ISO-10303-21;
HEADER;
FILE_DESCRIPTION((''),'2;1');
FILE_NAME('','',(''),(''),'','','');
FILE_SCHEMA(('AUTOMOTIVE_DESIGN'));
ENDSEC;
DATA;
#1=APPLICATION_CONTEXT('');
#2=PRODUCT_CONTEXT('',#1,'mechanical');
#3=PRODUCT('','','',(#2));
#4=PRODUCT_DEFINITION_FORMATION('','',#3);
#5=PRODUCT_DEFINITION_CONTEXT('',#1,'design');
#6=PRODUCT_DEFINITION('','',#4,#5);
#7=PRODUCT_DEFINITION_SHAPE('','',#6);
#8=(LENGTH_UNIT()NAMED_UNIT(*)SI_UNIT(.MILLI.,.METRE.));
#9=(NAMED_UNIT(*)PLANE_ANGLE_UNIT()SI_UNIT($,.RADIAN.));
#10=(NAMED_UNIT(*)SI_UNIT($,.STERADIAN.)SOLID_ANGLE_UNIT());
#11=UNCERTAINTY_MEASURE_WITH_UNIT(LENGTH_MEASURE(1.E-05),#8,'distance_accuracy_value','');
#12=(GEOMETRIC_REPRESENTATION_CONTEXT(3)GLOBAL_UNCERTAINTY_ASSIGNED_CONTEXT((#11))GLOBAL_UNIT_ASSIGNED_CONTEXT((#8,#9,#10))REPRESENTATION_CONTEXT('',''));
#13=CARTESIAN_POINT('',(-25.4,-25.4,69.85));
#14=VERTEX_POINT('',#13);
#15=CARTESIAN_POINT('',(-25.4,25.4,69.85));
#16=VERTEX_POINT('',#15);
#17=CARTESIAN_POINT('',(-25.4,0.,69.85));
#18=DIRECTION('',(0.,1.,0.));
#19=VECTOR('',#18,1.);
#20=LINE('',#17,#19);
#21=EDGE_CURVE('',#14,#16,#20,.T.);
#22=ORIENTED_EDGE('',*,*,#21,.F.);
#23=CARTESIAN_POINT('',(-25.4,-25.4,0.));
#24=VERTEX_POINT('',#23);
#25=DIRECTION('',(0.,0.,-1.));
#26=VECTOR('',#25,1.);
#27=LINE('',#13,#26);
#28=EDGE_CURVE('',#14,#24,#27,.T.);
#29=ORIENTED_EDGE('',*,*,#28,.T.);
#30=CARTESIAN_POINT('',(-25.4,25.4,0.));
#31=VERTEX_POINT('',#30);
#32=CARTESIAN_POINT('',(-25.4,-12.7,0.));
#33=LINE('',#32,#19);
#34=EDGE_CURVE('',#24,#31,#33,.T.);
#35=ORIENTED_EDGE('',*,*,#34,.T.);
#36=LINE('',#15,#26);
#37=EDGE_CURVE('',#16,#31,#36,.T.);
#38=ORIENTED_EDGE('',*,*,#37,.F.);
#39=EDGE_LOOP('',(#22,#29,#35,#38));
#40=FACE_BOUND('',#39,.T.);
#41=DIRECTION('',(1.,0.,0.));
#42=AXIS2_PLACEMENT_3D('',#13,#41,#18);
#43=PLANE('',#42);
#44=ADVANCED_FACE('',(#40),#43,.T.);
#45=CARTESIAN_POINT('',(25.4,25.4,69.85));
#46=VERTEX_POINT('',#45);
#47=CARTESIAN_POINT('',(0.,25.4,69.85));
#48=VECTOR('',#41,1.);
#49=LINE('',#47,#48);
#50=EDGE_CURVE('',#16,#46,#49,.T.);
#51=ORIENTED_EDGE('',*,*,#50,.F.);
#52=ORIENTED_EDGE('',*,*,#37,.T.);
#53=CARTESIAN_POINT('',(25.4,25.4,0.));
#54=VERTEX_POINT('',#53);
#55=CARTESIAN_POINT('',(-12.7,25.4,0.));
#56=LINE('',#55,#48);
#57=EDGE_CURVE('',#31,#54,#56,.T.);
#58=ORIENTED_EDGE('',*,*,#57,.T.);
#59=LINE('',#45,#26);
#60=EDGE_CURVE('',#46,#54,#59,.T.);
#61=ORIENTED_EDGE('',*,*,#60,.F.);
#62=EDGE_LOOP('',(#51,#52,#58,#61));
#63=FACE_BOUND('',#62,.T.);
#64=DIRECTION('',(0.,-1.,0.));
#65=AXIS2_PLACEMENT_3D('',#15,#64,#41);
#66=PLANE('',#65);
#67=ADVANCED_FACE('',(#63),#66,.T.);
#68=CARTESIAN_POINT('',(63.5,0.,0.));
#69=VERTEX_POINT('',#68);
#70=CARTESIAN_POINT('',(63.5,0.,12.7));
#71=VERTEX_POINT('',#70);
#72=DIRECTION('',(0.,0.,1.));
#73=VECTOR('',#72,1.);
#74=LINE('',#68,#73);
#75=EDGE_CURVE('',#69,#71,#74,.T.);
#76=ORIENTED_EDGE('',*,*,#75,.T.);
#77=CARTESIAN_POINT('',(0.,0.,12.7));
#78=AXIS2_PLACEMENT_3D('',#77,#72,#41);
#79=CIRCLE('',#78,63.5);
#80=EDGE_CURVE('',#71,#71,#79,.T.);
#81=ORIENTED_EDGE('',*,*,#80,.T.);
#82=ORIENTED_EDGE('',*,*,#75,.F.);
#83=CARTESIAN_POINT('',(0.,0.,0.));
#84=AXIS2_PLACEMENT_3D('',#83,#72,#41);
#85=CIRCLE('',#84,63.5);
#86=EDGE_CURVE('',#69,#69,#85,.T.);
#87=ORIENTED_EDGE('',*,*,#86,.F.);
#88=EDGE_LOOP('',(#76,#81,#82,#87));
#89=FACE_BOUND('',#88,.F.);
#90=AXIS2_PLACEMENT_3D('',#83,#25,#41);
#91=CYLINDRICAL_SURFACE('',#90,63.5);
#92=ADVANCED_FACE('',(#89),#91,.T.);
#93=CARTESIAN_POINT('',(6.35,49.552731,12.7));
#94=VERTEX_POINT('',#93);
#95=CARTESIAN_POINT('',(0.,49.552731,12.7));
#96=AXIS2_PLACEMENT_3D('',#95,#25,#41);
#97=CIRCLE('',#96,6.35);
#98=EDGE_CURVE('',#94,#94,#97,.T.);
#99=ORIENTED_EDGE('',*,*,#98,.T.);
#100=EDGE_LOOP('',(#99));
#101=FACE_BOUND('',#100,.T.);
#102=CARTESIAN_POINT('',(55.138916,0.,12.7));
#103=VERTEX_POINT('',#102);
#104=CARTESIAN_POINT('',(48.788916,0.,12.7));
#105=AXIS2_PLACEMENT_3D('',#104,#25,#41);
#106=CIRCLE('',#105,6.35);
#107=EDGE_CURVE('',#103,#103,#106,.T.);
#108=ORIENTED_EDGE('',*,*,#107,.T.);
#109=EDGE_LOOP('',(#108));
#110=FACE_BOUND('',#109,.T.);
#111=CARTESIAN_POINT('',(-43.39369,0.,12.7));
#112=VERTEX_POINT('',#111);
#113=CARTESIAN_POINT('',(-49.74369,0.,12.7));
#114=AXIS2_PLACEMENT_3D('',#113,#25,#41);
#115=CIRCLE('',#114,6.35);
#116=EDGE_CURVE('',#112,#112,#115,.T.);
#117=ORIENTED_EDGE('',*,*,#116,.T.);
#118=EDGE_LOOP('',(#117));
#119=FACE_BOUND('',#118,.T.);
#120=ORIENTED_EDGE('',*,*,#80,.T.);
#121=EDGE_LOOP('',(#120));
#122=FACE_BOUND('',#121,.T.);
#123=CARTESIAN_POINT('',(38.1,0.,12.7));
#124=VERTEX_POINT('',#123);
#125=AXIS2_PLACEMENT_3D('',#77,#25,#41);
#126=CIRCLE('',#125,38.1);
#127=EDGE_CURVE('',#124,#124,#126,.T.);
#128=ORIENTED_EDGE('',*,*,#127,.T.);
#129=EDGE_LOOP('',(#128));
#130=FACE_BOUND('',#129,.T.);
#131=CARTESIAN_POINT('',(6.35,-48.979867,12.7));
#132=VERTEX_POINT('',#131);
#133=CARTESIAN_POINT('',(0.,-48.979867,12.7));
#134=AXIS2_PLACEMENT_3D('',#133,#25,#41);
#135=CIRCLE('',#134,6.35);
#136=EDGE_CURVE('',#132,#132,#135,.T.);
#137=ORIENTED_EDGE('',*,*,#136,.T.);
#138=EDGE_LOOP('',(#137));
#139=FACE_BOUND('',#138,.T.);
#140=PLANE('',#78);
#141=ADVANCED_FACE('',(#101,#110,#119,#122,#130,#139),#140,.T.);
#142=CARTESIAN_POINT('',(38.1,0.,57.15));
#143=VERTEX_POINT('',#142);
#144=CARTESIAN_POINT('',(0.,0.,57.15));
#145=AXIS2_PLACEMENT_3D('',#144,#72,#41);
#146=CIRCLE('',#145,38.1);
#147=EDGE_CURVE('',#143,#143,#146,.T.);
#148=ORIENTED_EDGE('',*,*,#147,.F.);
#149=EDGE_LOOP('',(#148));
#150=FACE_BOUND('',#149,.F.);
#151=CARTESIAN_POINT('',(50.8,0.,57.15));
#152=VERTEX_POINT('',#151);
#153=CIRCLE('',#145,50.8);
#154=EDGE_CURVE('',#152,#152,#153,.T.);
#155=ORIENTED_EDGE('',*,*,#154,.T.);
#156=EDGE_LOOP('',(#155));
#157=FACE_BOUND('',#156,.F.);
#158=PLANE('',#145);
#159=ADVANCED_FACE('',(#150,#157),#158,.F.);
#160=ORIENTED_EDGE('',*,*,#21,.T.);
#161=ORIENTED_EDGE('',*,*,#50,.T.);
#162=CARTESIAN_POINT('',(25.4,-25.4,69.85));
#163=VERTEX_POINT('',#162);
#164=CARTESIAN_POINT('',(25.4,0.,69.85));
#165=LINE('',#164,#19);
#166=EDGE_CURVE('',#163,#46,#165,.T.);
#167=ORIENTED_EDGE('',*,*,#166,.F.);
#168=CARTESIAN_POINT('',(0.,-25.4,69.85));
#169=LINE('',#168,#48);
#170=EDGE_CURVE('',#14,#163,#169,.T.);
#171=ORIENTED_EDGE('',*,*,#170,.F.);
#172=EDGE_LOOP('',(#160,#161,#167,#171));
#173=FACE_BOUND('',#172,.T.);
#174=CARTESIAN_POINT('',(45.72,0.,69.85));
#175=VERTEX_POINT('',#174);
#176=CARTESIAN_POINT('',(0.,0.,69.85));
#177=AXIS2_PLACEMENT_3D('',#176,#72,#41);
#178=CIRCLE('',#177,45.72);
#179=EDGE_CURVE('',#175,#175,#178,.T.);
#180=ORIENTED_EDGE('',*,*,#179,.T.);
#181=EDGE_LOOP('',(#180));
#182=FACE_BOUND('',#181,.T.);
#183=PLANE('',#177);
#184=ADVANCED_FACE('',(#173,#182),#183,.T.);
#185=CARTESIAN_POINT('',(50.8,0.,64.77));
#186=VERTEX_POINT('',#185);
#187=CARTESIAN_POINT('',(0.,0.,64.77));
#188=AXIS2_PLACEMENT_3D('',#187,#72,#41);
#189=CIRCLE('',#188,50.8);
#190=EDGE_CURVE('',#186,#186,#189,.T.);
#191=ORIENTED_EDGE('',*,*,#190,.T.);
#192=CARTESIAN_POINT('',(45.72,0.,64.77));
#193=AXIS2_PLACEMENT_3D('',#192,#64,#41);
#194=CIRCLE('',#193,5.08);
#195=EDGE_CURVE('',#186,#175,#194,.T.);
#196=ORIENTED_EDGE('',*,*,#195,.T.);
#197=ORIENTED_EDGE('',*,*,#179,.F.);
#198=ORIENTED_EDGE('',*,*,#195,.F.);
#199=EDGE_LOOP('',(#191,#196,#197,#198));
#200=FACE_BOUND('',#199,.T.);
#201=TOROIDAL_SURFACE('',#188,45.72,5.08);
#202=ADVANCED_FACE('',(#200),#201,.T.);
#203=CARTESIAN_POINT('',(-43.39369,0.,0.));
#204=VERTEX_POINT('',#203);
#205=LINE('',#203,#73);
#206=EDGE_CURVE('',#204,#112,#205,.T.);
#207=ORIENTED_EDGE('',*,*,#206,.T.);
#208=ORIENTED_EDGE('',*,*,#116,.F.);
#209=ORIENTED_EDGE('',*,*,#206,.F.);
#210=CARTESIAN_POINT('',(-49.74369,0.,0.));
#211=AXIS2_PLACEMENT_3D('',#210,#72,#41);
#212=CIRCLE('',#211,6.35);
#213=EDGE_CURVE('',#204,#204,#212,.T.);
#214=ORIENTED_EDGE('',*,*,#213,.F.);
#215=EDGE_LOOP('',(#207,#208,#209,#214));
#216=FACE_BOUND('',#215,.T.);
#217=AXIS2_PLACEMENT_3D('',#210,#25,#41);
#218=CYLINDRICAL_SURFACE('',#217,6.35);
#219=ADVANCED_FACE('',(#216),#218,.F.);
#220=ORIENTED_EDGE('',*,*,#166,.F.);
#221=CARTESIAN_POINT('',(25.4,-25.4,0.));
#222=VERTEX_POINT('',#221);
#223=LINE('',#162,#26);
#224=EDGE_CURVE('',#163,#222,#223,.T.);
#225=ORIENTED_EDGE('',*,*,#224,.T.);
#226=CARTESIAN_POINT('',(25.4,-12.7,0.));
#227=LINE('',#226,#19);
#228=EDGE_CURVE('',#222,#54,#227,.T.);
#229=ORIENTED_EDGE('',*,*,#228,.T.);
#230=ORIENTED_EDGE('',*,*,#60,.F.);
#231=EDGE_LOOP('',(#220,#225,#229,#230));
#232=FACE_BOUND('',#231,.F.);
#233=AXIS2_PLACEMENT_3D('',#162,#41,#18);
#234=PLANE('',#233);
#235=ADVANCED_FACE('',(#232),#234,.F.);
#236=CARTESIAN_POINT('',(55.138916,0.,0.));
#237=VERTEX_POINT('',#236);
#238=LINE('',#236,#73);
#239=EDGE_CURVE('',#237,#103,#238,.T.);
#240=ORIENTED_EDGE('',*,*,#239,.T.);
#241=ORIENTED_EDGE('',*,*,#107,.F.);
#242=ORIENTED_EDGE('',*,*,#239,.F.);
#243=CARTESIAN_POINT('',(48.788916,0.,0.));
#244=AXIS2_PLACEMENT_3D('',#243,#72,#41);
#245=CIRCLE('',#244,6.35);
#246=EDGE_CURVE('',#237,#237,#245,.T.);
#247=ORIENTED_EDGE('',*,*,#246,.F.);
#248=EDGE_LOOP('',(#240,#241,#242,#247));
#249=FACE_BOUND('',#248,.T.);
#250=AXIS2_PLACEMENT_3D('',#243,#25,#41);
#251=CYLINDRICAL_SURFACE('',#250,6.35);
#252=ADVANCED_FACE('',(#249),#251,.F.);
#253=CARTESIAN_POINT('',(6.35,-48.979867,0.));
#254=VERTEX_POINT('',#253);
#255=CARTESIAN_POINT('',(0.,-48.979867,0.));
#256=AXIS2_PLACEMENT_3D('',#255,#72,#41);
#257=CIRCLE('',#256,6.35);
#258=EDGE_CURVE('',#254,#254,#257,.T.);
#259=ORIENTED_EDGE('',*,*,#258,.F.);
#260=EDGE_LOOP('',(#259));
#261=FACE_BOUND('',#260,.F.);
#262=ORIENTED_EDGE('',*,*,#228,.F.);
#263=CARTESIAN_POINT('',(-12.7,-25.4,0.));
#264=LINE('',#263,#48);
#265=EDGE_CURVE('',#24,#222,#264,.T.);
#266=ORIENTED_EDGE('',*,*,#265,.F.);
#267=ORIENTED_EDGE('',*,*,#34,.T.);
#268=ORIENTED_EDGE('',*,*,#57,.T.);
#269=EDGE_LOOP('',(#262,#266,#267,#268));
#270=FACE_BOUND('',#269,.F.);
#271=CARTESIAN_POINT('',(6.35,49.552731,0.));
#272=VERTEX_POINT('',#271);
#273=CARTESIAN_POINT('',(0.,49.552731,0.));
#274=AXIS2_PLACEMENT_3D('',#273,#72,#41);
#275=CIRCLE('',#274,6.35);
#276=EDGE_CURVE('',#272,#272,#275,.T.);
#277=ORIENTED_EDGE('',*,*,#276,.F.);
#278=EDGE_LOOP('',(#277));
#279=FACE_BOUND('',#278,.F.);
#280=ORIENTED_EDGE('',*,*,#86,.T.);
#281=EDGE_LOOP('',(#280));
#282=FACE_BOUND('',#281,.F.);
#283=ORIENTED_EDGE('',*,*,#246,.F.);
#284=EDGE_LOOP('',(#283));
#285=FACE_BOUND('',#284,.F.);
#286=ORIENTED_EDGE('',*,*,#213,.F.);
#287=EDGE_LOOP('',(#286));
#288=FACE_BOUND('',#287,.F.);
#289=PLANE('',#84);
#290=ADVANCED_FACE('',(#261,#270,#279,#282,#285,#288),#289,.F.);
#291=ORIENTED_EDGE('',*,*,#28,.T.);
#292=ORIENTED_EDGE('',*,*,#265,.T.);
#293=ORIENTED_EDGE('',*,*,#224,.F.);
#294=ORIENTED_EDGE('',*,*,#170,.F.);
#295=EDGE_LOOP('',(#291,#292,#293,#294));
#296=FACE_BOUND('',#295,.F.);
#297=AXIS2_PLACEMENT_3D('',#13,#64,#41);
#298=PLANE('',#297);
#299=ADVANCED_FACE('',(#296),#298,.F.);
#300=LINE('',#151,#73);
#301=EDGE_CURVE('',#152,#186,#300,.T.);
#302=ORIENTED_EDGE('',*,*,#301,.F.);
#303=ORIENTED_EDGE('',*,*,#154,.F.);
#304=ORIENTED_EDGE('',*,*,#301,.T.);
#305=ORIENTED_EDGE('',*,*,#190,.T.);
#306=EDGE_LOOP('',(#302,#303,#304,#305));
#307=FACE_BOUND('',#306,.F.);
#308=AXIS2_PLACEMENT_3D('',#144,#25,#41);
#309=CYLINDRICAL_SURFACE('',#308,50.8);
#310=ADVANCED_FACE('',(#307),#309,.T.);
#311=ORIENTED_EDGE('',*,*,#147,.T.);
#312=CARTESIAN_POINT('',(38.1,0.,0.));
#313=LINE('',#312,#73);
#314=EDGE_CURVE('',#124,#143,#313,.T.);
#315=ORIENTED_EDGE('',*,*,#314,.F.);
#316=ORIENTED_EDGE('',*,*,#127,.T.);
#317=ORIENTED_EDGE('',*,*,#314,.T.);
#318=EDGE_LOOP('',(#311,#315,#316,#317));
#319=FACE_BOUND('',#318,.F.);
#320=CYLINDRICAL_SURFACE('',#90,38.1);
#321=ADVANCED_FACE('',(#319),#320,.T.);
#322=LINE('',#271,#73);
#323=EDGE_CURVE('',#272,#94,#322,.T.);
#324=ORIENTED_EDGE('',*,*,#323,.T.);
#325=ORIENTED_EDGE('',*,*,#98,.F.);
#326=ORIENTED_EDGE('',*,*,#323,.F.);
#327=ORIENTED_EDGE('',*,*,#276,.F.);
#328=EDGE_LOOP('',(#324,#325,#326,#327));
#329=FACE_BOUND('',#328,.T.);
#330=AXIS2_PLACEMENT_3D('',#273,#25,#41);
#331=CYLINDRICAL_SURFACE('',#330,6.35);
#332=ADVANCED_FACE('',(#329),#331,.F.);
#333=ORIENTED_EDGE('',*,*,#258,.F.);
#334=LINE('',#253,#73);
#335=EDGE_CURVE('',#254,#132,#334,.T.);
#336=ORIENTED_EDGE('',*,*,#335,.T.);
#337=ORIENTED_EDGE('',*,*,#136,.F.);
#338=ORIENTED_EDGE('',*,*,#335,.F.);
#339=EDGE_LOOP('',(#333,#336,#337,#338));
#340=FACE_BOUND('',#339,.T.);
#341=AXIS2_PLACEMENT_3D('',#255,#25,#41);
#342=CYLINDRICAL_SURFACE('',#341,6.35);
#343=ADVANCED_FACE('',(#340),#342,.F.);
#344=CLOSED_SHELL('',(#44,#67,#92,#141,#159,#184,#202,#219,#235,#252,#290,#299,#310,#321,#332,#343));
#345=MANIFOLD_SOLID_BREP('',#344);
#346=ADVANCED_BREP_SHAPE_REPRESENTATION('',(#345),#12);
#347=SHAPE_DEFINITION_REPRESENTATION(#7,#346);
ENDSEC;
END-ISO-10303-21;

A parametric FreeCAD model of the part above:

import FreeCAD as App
import Part
import Sketcher
from FreeCAD import Vector
Q = App.Units.Quantity


def edges_at(feature, points):
    """Names of the edges that pass closest to the given points."""
    edges = feature.Shape.Edges
    near = lambda p: min(range(len(edges)), key=lambda i: edges[i].distToShape(Part.Vertex(*p))[0])
    return sorted({f"Edge{near(p) + 1}" for p in points})

doc = App.newDocument("Part")
body = doc.addObject("PartDesign::Body", "Body")

sketch1 = body.newObject("Sketcher::SketchObject", "Sketch")
sketch1.AttachmentSupport = (doc.getObject("XY_Plane"), [""])
sketch1.MapMode = "FlatFace"
sketch1.addGeometry(Part.Circle(Vector(0, 0, 0), Vector(0, 0, 1), 64), False)
sketch1.addConstraint([
    Sketcher.Constraint("Coincident", 0, 3, -1, 1),
    Sketcher.Constraint("Diameter", 0, Q("5 in")),
])
pad1 = body.newObject("PartDesign::Pad", "Pad")
pad1.Profile = sketch1
pad1.Length = Q("0.5 in")

sketch2 = body.newObject("Sketcher::SketchObject", "Sketch001")
sketch2.AttachmentSupport = (doc.getObject("XY_Plane"), [""])
sketch2.MapMode = "FlatFace"
sketch2.addGeometry(Part.Circle(Vector(0, 0, 0), Vector(0, 0, 1), 38), False)
sketch2.addConstraint([
    Sketcher.Constraint("Coincident", 0, 3, -1, 1),
    Sketcher.Constraint("Diameter", 0, Q("3 in")),
])
pad2 = body.newObject("PartDesign::Pad", "Pad001")
pad2.Profile = sketch2
pad2.Length = Q("2.25 in")

sketch3 = body.newObject("Sketcher::SketchObject", "Sketch002")
sketch3.AttachmentSupport = (doc.getObject("XY_Plane"), [""])
sketch3.MapMode = "FlatFace"
sketch3.addGeometry([
    Part.Circle(Vector(-50, 0, 0), Vector(0, 0, 1), 6),
    Part.Circle(Vector(0, 50, 0), Vector(0, 0, 1), 6),
    Part.Circle(Vector(49, 0, 0), Vector(0, 0, 1), 6),
    Part.Circle(Vector(0, -49, 0), Vector(0, 0, 1), 6),
], False)
sketch3.addConstraint([
    Sketcher.Constraint("Equal", 0, 1),
    Sketcher.Constraint("Equal", 1, 2),
    Sketcher.Constraint("Equal", 2, 3),
    Sketcher.Constraint("PointOnObject", 0, 3, -1),
    Sketcher.Constraint("PointOnObject", 1, 3, -2),
    Sketcher.Constraint("PointOnObject", 2, 3, -1),
    Sketcher.Constraint("PointOnObject", 3, 3, -2),
    Sketcher.Constraint("Diameter", 0, Q("0.5 in")),
    Sketcher.Constraint("DistanceY", 3, 3, 1, 3, Q("98.532598 mm")),
    Sketcher.Constraint("DistanceX", 0, 3, -1, 1, Q("49.74369 mm")),
    Sketcher.Constraint("DistanceY", -1, 1, 1, 3, Q("49.552731 mm")),
    Sketcher.Constraint("DistanceX", -1, 1, 2, 3, Q("48.788916 mm")),
])
pocket1 = body.newObject("PartDesign::Pocket", "Pocket")
pocket1.Profile = sketch3
pocket1.Length = Q("0.5 in")

sketch4 = body.newObject("Sketcher::SketchObject", "Sketch003")
sketch4.AttachmentSupport = (doc.getObject("XY_Plane"), [""])
sketch4.MapMode = "FlatFace"
sketch4.addGeometry([
    Part.Circle(Vector(-50, 0, 0), Vector(0, 0, 1), 6),
    Part.Circle(Vector(0, 50, 0), Vector(0, 0, 1), 6),
    Part.Circle(Vector(49, 0, 0), Vector(0, 0, 1), 6),
    Part.Circle(Vector(0, -49, 0), Vector(0, 0, 1), 6),
], False)
sketch4.addConstraint([
    Sketcher.Constraint("Equal", 0, 1),
    Sketcher.Constraint("Equal", 1, 2),
    Sketcher.Constraint("Equal", 2, 3),
    Sketcher.Constraint("PointOnObject", 0, 3, -1),
    Sketcher.Constraint("PointOnObject", 1, 3, -2),
    Sketcher.Constraint("PointOnObject", 2, 3, -1),
    Sketcher.Constraint("PointOnObject", 3, 3, -2),
    Sketcher.Constraint("Diameter", 0, Q("0.5 in")),
    Sketcher.Constraint("DistanceY", 3, 3, 1, 3, Q("98.532598 mm")),
    Sketcher.Constraint("DistanceX", 0, 3, -1, 1, Q("49.74369 mm")),
    Sketcher.Constraint("DistanceY", -1, 1, 1, 3, Q("49.552731 mm")),
    Sketcher.Constraint("DistanceX", -1, 1, 2, 3, Q("48.788916 mm")),
])
pocket2 = body.newObject("PartDesign::Pocket", "Pocket001")
pocket2.Profile = sketch4
pocket2.Length = Q("1 in")
pocket2.Reversed = True

sketch5 = body.newObject("Sketcher::SketchObject", "Sketch004")
sketch5.AttachmentSupport = (doc.getObject("XY_Plane"), [""])
sketch5.MapMode = "FlatFace"
sketch5.addGeometry([
    Part.Circle(Vector(-50, 0, 0), Vector(0, 0, 1), 6),
    Part.Circle(Vector(0, 50, 0), Vector(0, 0, 1), 6),
    Part.Circle(Vector(49, 0, 0), Vector(0, 0, 1), 6),
    Part.Circle(Vector(0, -49, 0), Vector(0, 0, 1), 6),
], False)
sketch5.addConstraint([
    Sketcher.Constraint("Equal", 0, 1),
    Sketcher.Constraint("Equal", 1, 2),
    Sketcher.Constraint("Equal", 2, 3),
    Sketcher.Constraint("PointOnObject", 0, 3, -1),
    Sketcher.Constraint("PointOnObject", 1, 3, -2),
    Sketcher.Constraint("PointOnObject", 2, 3, -1),
    Sketcher.Constraint("PointOnObject", 3, 3, -2),
    Sketcher.Constraint("Diameter", 0, Q("0.5 in")),
    Sketcher.Constraint("DistanceY", 3, 3, 1, 3, Q("98.532598 mm")),
    Sketcher.Constraint("DistanceX", 0, 3, -1, 1, Q("49.74369 mm")),
    Sketcher.Constraint("DistanceY", -1, 1, 1, 3, Q("49.552731 mm")),
    Sketcher.Constraint("DistanceX", -1, 1, 2, 3, Q("48.788916 mm")),
])
pocket3 = body.newObject("PartDesign::Pocket", "Pocket002")
pocket3.Profile = sketch5
pocket3.Length = Q("1 in")

sketch6 = body.newObject("Sketcher::SketchObject", "Sketch005")
sketch6.AttachmentSupport = (doc.getObject("XY_Plane"), [""])
sketch6.MapMode = "FlatFace"
sketch6.AttachmentOffset = App.Placement(Vector(0, 0, 2.25 * 25.4), App.Rotation())
sketch6.addGeometry(Part.Circle(Vector(0, 0, 0), Vector(0, 0, 1), 51), False)
sketch6.addConstraint([
    Sketcher.Constraint("Coincident", 0, 3, -1, 1),
    Sketcher.Constraint("Diameter", 0, Q("4 in")),
])
pad3 = body.newObject("PartDesign::Pad", "Pad002")
pad3.Profile = sketch6
pad3.Length = Q("0.5 in")

sketch7 = body.newObject("Sketcher::SketchObject", "Sketch006")
sketch7.AttachmentSupport = (doc.getObject("XY_Plane"), [""])
sketch7.MapMode = "FlatFace"
sketch7.AttachmentOffset = App.Placement(Vector(0, 0, 2.75 * 25.4), App.Rotation())
sketch7.addGeometry([
    Part.LineSegment(Vector(-25, 25, 0), Vector(-25, -25, 0)),
    Part.LineSegment(Vector(-25, -25, 0), Vector(25, -25, 0)),
    Part.LineSegment(Vector(25, -25, 0), Vector(25, 25, 0)),
    Part.LineSegment(Vector(25, 25, 0), Vector(-25, 25, 0)),
], False)
sketch7.addConstraint([
    Sketcher.Constraint("Coincident", 0, 2, 1, 1),
    Sketcher.Constraint("Coincident", 1, 2, 2, 1),
    Sketcher.Constraint("Coincident", 2, 2, 3, 1),
    Sketcher.Constraint("Coincident", 3, 2, 0, 1),
    Sketcher.Constraint("Vertical", 0),
    Sketcher.Constraint("Horizontal", 1),
    Sketcher.Constraint("Vertical", 2),
    Sketcher.Constraint("Horizontal", 3),
    Sketcher.Constraint("Symmetric", 0, 2, 2, 2, -1, 1),
    Sketcher.Constraint("Equal", 3, 0),
    Sketcher.Constraint("DistanceX", 1, 1, 1, 2, Q("2 in")),
])
pocket4 = body.newObject("PartDesign::Pocket", "Pocket003")
pocket4.Profile = sketch7
pocket4.Length = Q("5 in")
doc.recompute()

fillet = body.newObject("PartDesign::Fillet", "Fillet")
fillet.Base = (pocket4, edges_at(pocket4, [(-50.8, 0, 69.85)]))
fillet.Radius = Q("0.2 in")

doc.recompute()
